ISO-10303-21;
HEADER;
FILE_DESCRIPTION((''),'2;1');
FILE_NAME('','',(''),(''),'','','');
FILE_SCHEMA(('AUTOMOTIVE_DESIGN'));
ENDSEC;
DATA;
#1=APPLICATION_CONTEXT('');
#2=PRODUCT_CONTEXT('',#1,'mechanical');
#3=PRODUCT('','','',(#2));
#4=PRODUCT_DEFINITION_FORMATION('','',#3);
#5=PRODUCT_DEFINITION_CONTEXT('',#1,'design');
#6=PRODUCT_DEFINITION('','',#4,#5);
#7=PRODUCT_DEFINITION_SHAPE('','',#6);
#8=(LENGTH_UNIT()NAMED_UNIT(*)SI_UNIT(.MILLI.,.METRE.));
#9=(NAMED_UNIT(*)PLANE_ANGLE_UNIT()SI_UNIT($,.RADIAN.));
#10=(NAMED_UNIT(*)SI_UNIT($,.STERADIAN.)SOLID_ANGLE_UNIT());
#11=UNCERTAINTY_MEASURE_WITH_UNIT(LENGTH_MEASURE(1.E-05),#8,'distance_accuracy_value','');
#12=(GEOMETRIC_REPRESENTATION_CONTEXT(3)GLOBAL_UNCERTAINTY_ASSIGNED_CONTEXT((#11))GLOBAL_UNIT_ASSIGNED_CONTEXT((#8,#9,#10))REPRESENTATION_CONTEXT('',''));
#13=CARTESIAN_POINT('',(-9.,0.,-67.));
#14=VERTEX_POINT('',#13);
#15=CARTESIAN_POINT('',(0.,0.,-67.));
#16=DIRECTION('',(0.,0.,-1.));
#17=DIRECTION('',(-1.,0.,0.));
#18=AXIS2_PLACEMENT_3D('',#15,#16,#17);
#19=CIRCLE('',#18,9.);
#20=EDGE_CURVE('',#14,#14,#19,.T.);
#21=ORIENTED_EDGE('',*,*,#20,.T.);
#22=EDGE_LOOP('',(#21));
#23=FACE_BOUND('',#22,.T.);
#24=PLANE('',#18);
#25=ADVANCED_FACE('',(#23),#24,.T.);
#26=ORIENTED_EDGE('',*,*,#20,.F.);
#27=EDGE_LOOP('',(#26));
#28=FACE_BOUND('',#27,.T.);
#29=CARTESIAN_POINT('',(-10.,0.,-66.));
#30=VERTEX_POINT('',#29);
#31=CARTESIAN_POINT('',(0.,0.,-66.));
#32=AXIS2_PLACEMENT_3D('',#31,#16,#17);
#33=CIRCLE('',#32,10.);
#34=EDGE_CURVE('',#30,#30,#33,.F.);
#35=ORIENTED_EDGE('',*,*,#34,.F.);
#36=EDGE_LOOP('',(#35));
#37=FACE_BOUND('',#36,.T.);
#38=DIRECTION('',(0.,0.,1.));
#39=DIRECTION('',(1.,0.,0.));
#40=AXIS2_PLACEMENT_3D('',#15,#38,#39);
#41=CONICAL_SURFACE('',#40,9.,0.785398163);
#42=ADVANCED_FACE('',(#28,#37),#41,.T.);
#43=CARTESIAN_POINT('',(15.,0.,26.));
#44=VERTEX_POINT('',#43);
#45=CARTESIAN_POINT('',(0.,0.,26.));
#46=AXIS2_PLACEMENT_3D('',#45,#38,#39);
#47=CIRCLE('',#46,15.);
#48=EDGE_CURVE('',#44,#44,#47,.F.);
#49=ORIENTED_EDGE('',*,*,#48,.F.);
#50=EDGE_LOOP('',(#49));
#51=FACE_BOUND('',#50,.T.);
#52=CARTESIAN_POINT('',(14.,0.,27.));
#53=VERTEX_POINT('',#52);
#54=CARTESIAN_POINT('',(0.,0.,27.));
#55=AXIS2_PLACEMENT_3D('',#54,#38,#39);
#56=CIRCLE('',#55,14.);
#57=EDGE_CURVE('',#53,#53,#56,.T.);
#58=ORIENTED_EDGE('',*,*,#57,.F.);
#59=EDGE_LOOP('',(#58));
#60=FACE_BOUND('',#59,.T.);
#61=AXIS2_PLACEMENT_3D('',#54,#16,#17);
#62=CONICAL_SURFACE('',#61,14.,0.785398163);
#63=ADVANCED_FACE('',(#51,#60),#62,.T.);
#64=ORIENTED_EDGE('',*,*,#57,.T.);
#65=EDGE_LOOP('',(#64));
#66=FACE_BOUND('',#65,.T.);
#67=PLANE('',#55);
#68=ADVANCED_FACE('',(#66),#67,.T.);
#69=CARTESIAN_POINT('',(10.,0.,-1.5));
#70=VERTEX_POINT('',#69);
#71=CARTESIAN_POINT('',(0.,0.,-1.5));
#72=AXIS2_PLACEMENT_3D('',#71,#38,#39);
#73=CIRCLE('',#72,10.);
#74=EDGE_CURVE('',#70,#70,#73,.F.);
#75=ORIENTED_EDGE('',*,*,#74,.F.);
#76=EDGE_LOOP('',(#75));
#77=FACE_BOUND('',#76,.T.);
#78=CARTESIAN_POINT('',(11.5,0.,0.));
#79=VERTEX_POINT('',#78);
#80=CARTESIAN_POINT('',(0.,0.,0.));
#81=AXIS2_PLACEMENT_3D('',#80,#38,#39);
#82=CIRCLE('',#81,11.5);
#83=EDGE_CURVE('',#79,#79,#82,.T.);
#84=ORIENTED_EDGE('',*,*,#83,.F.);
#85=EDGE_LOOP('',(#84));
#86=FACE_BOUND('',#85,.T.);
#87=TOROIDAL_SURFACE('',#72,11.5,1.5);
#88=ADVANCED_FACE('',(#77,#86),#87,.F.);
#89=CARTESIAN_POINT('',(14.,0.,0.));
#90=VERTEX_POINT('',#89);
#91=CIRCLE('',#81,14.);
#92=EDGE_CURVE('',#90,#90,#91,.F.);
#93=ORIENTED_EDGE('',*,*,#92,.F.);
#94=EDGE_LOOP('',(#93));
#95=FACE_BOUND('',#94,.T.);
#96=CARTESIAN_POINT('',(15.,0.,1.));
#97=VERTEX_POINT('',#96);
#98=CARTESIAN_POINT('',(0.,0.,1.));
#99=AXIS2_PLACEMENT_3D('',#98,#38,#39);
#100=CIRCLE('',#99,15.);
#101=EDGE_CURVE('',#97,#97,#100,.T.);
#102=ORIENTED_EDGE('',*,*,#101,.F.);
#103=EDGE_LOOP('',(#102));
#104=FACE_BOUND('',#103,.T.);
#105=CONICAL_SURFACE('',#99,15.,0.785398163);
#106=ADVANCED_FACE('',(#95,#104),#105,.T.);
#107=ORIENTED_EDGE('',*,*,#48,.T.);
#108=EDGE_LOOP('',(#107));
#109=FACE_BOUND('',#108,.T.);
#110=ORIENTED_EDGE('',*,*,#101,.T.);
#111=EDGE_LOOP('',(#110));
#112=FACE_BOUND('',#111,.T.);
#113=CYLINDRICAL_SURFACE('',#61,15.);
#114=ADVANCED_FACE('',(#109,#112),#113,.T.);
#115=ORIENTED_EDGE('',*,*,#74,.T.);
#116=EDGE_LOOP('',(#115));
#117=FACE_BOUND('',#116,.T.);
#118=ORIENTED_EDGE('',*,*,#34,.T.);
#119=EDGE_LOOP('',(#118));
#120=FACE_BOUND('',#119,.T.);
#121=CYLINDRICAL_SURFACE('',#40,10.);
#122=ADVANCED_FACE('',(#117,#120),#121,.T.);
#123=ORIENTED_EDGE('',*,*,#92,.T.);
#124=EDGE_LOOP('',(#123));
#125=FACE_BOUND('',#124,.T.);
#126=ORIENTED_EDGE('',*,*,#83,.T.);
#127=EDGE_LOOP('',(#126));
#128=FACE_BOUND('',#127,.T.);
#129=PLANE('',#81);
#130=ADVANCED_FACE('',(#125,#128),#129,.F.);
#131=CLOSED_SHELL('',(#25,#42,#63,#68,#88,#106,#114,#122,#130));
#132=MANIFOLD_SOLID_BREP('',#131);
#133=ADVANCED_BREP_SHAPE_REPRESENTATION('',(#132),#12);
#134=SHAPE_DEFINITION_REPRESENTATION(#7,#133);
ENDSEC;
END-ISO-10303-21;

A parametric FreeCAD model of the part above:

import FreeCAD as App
import Part
import Sketcher
from FreeCAD import Vector
Q = App.Units.Quantity


def edges_at(feature, points):
    """Names of the edges that pass closest to the given points."""
    edges = feature.Shape.Edges
    near = lambda p: min(range(len(edges)), key=lambda i: edges[i].distToShape(Part.Vertex(*p))[0])
    return sorted({f"Edge{near(p) + 1}" for p in points})

doc = App.newDocument("Part")
body = doc.addObject("PartDesign::Body", "Body")

sketch1 = doc.addObject("Sketcher::SketchObject", "Sketch")
body.addObject(sketch1)
sketch1.AttachmentSupport = (doc.XY_Plane, [""])
sketch1.MapMode = "FlatFace"
sketch1.addGeometry(Part.Circle(Vector(0, 0, 0), Vector(0, 0, 1), 15), False)
sketch1.addConstraint([
    Sketcher.Constraint("Coincident", 0, 3, -1, 1),
    Sketcher.Constraint("Diameter", 0, Q("30 mm")),
])
pad1 = doc.addObject("PartDesign::Pad", "Pad")
body.addObject(pad1)
pad1.Profile = sketch1
pad1.Length = 27

sketch2 = doc.addObject("Sketcher::SketchObject", "Sketch001")
body.addObject(sketch2)
sketch2.AttachmentSupport = (doc.XY_Plane, [""])
sketch2.MapMode = "FlatFace"
sketch2.addGeometry(Part.Circle(Vector(0, 0, 0), Vector(0, 0, 1), 10), False)
sketch2.addConstraint([
    Sketcher.Constraint("Coincident", 0, 3, -1, 1),
    Sketcher.Constraint("Diameter", 0, Q("20 mm")),
])
pad2 = doc.addObject("PartDesign::Pad", "Pad001")
body.addObject(pad2)
pad2.Profile = sketch2
pad2.Length = 67
pad2.Reversed = True
doc.recompute()

chamfer = doc.addObject("PartDesign::Chamfer", "Chamfer")
body.addObject(chamfer)
chamfer.Base = (pad2, edges_at(pad2, [(-15, 0, 0), (-15, 0, 27), (-10, 0, -67)]))
chamfer.Size = 1
doc.recompute()

fillet = doc.addObject("PartDesign::Fillet", "Fillet")
body.addObject(fillet)
fillet.Base = (chamfer, edges_at(chamfer, [(-10, 0, 0)]))
fillet.Radius = 1.5

doc.recompute()
